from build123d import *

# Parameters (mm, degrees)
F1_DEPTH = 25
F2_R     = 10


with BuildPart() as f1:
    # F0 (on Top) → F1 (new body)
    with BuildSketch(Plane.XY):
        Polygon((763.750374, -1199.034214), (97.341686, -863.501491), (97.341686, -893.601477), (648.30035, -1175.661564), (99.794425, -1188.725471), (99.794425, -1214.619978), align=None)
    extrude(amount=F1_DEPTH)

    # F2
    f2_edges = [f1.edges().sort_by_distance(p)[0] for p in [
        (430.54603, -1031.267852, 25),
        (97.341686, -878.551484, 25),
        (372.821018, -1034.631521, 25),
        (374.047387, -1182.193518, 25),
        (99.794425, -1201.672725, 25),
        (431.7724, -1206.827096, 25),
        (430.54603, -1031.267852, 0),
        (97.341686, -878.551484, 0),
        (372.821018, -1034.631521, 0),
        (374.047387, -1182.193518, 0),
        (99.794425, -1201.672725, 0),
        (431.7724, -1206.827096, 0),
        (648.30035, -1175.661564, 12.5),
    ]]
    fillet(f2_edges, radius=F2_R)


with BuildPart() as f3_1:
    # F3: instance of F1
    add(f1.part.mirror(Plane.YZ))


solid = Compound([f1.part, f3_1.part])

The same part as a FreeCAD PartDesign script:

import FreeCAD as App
import Part
import Sketcher


def edges_at(feature, points):
    """Names of the edges that pass closest to the given points."""
    edges = feature.Shape.Edges
    near = lambda p: min(range(len(edges)), key=lambda i: edges[i].distToShape(Part.Vertex(*p))[0])
    return sorted({f"Edge{near(p) + 1}" for p in points})


def add_polygon(sketch, points):
    """Adds a closed chain of lines whose ends are joined by coincident constraints."""
    first, n = sketch.GeometryCount, len(points)
    for a, b in zip(points, points[1:] + points[:1]):
        sketch.addGeometry(Part.LineSegment(App.Vector(*a, 0), App.Vector(*b, 0)), False)
    for i in range(n):
        sketch.addConstraint(Sketcher.Constraint("Coincident", first + i, 2, first + (i + 1) % n, 1))

doc = App.newDocument("Part")
body = doc.addObject("PartDesign::Body", "Body")

sketch1 = doc.addObject("Sketcher::SketchObject", "Sketch")
body.addObject(sketch1)
sketch1.AttachmentSupport = (doc.XY_Plane, [""])
sketch1.MapMode = "FlatFace"
add_polygon(sketch1, [(763.750374, -1199.034214), (97.341686, -863.501491), (97.341686, -893.601477), (648.30035, -1175.661564), (99.794425, -1188.725471), (99.794425, -1214.619978)])
sketch1.addConstraint(Sketcher.Constraint("Vertical", 1))
sketch1.addConstraint(Sketcher.Constraint("Vertical", 4))
sketch1.addConstraint(Sketcher.Constraint("DistanceY", 4, 2, 1, 2, 321.018501))
sketch1.addConstraint(Sketcher.Constraint("DistanceY", 1, 2, 1, 1, 30.099986))
sketch1.addConstraint(Sketcher.Constraint("DistanceY", 4, 2, 4, 1, 25.894507))
sketch1.addConstraint(Sketcher.Constraint("DistanceY", 0, 2, -1, 1, 863.501491))
sketch1.addConstraint(Sketcher.Constraint("DistanceX", -1, 1, 2, 2, 648.30035))
sketch1.addConstraint(Sketcher.Constraint("DistanceX", 1, 2, 3, 2, 2.452739))
sketch1.addConstraint(Sketcher.Constraint("DistanceY", 5, 2, 2, 2, 23.37265))
sketch1.addConstraint(Sketcher.Constraint("DistanceX", 3, 2, 5, 2, 663.955949))
sketch1.addConstraint(Sketcher.Constraint("Distance", 0, 746.111753))
sketch1.addConstraint(Sketcher.Constraint("Distance", 2, 618.961503))
pad1 = doc.addObject("PartDesign::Pad", "Pad")
body.addObject(pad1)
pad1.Profile = sketch1
pad1.Length = 25
doc.recompute()

fillet = doc.addObject("PartDesign::Fillet", "Fillet")
body.addObject(fillet)
fillet.Base = (pad1, edges_at(pad1, [
    (430.546, -1031.268, 25),
    (97.342, -878.551, 25),
    (372.821, -1034.632, 25),
    (374.047, -1182.194, 25),
    (99.794, -1201.673, 25),
    (431.772, -1206.827, 25),
    (430.546, -1031.268, 0),
    (97.342, -878.551, 0),
    (372.821, -1034.632, 0),
    (374.047, -1182.194, 0),
    (99.794, -1201.673, 0),
    (431.772, -1206.827, 0),
    (648.3, -1175.662, 12.5),
]))
fillet.Radius = 10
body2 = doc.addObject("PartDesign::Body", "Body001")
doc.recompute()

mirroring = doc.addObject("Part::Mirroring", "Mirroring")
mirroring.Source = body
mirroring.Base = App.Vector(0, 0, 0)
mirroring.Normal = App.Vector(1, 0, 0)
body2.BaseFeature = mirroring
doc.recompute()
mirroring.Visibility = False

doc.recompute()
